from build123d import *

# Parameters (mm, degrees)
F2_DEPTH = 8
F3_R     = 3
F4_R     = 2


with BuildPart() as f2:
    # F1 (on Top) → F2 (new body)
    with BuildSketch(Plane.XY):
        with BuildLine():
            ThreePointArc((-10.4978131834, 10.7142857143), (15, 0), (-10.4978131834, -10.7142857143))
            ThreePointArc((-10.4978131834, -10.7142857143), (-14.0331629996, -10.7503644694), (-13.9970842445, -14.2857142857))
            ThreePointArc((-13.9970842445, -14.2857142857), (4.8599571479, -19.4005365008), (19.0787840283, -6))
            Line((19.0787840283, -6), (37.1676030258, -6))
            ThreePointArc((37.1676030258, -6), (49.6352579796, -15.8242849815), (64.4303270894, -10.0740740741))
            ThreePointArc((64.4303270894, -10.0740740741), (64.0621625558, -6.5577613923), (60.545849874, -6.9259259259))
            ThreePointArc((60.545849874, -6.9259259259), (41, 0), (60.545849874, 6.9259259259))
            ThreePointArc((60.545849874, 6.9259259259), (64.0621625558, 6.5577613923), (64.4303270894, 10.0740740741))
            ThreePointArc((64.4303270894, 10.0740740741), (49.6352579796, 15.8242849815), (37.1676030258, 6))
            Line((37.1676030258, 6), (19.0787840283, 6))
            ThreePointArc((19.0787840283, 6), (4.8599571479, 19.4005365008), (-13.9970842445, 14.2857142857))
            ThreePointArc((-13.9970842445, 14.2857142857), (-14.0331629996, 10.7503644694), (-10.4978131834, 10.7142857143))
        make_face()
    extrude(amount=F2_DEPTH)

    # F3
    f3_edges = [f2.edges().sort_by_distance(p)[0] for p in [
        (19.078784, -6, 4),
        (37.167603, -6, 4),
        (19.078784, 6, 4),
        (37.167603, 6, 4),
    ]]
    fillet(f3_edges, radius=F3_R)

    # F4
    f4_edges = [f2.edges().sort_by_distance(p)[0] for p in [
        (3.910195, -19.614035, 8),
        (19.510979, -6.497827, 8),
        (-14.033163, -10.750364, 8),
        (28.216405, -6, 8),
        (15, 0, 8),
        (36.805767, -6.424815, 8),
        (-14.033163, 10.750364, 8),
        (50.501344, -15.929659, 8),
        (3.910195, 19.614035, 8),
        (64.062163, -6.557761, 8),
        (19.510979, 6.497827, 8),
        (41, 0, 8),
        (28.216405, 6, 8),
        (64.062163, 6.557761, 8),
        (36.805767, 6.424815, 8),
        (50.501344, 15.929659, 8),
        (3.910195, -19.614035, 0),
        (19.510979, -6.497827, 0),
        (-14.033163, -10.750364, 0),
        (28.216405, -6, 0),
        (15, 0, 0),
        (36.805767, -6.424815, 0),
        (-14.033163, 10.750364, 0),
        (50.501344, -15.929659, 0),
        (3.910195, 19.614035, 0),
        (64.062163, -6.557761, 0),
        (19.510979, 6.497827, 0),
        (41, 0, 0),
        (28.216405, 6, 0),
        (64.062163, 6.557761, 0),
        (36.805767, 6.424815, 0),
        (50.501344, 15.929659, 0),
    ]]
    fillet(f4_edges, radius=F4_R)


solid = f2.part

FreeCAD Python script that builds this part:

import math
import FreeCAD as App
import Part
import Sketcher

V = App.Vector
Q = App.Units.Quantity


def edges_at(feature, points):
    """Names of the edges that pass closest to the given points."""
    edges = feature.Shape.Edges
    near = lambda p: min(range(len(edges)), key=lambda i: edges[i].distToShape(Part.Vertex(*p))[0])
    return sorted({f"Edge{near(p) + 1}" for p in points})

doc = App.newDocument("Part")
params = doc.addObject("Spreadsheet::Sheet", "Params")
for row, (alias, value) in enumerate([
    ("sketch1_radius", "15 mm"),
    ("sketch1_radius2", "20 mm"),
    ("sketch1_radius3", "16 mm"),
    ("pad1_length", "8 mm"),
    ("fillet_radius", "3 mm"),
    ("fillet2_radius", "2 mm"),
], start=1):
    params.set(f"A{row}", alias)
    params.set(f"B{row}", "=" + value)
    params.setAlias(f"B{row}", alias)

body = doc.addObject("PartDesign::Body", "Body")

# Sketch on XY plane
sketch1 = body.newObject("Sketcher::SketchObject", "Sketch")
sketch1.AttachmentSupport = (doc.getObject("XY_Plane"), [""])
sketch1.MapMode = "FlatFace"
sketch1.addGeometry(Part.ArcOfCircle(Part.Circle(V(0, 0, 0), V(0, 0, 1), 15), math.radians(-134.415309), math.radians(134.415309)), False)
sketch1.addGeometry(Part.ArcOfCircle(Part.Circle(V(-12.247449, -12.5, 0), V(0, 0, 1), 2.5), math.radians(45.584691), math.radians(225.584691)), False)
sketch1.addGeometry(Part.ArcOfCircle(Part.Circle(V(0, 0, 0), V(0, 0, 1), 20), math.radians(-134.415309), math.radians(-17.457603)), False)
sketch1.addGeometry(Part.LineSegment(V(19.078784, -6, 0), V(37.167603, -6, 0)), False)
sketch1.addGeometry(Part.ArcOfCircle(Part.Circle(V(52, 0, 0), V(0, 0, 1), 16), math.radians(-157.975687), math.radians(-39.022803)), False)
sketch1.addGeometry(Part.ArcOfCircle(Part.Circle(V(62.488088, -8.5, 0), V(0, 0, 1), 2.5), math.radians(-39.022803), math.radians(140.977197)), False)
sketch1.addGeometry(Part.ArcOfCircle(Part.Circle(V(52, 0, 0), V(0, 0, 1), 11), math.radians(39.022803), math.radians(320.977197)), False)
sketch1.addGeometry(Part.ArcOfCircle(Part.Circle(V(62.488088, 8.5, 0), V(0, 0, 1), 2.5), math.radians(-140.977197), math.radians(39.022803)), False)
sketch1.addGeometry(Part.ArcOfCircle(Part.Circle(V(52, 0, 0), V(0, 0, 1), 16), math.radians(39.022803), math.radians(157.975687)), False)
sketch1.addGeometry(Part.LineSegment(V(37.167603, 6, 0), V(19.078784, 6, 0)), False)
sketch1.addGeometry(Part.ArcOfCircle(Part.Circle(V(0, 0, 0), V(0, 0, 1), 20), math.radians(17.457603), math.radians(134.415309)), False)
sketch1.addGeometry(Part.ArcOfCircle(Part.Circle(V(-12.247449, 12.5, 0), V(0, 0, 1), 2.5), math.radians(134.415309), math.radians(314.415309)), False)
sketch1.addConstraint(Sketcher.Constraint("Tangent", 0, 1, 1, 1))
sketch1.addConstraint(Sketcher.Constraint("Tangent", 1, 2, 2, 1))
sketch1.addConstraint(Sketcher.Constraint("Coincident", 2, 2, 3, 1))
sketch1.addConstraint(Sketcher.Constraint("Coincident", 3, 2, 4, 1))
sketch1.addConstraint(Sketcher.Constraint("Tangent", 4, 2, 5, 1))
sketch1.addConstraint(Sketcher.Constraint("Tangent", 5, 2, 6, 2))
sketch1.addConstraint(Sketcher.Constraint("Tangent", 6, 1, 7, 1))
sketch1.addConstraint(Sketcher.Constraint("Tangent", 7, 2, 8, 1))
sketch1.addConstraint(Sketcher.Constraint("Coincident", 8, 2, 9, 1))
sketch1.addConstraint(Sketcher.Constraint("Coincident", 9, 2, 10, 1))
sketch1.addConstraint(Sketcher.Constraint("Tangent", 10, 2, 11, 1))
sketch1.addConstraint(Sketcher.Constraint("Tangent", 11, 2, 0, 2))
sketch1.addConstraint(Sketcher.Constraint("Horizontal", 3))
sketch1.addConstraint(Sketcher.Constraint("Horizontal", 9))
sketch1.addConstraint(Sketcher.Constraint("Coincident", 0, 3, -1, 1))
sketch1.addConstraint(Sketcher.Constraint("Coincident", 2, 3, -1, 1))
sketch1.addConstraint(Sketcher.Constraint("Coincident", 10, 3, -1, 1))
sketch1.addConstraint(Sketcher.Constraint("Coincident", 6, 3, 4, 3))
sketch1.addConstraint(Sketcher.Constraint("Coincident", 8, 3, 4, 3))
sketch1.addConstraint(Sketcher.Constraint("Equal", 1, 5))
sketch1.addConstraint(Sketcher.Constraint("Equal", 5, 7))
sketch1.addConstraint(Sketcher.Constraint("Equal", 2, 10))
sketch1.addConstraint(Sketcher.Constraint("Symmetric", 5, 3, 7, 3, -1))
sketch1.addConstraint(Sketcher.Constraint("Vertical", 1, 3, 11, 3))
sketch1.addConstraint(Sketcher.Constraint("Vertical", 3, 2, 8, 2))
sketch1.addConstraint(Sketcher.Constraint("Radius", 0, Q("15 mm")))
sketch1.addConstraint(Sketcher.Constraint("Radius", 2, Q("20 mm")))
sketch1.addConstraint(Sketcher.Constraint("Radius", 4, Q("16 mm")))
sketch1.addConstraint(Sketcher.Constraint("DistanceX", -1, 1, 4, 3, Q("52 mm")))
sketch1.addConstraint(Sketcher.Constraint("DistanceY", 2, 2, -1, 1, Q("6 mm")))
sketch1.addConstraint(Sketcher.Constraint("DistanceY", 1, 3, 5, 3, Q("4 mm")))
sketch1.addConstraint(Sketcher.Constraint("DistanceY", 5, 3, 7, 3, Q("17 mm")))
sketch1.setExpression("Constraints[25]", "Params.sketch1_radius")
sketch1.setExpression("Constraints[26]", "Params.sketch1_radius2")
sketch1.setExpression("Constraints[27]", "Params.sketch1_radius3")
pad1 = body.newObject("PartDesign::Pad", "Pad")
pad1.Profile = sketch1
pad1.setExpression("Length", "Params.pad1_length")
doc.recompute()

fillet = body.newObject("PartDesign::Fillet", "Fillet")
fillet.Base = (pad1, edges_at(pad1, [
    (19.079, -6, 4),
    (37.168, -6, 4),
    (19.079, 6, 4),
    (37.168, 6, 4),
]))
fillet.setExpression("Radius", "Params.fillet_radius")
doc.recompute()

fillet2 = body.newObject("PartDesign::Fillet", "Fillet001")
fillet2.Base = (fillet, edges_at(fillet, [
    (3.91, -19.614, 8),
    (19.511, -6.498, 8),
    (-14.033, -10.75, 8),
    (28.216, -6, 8),
    (15, 0, 8),
    (36.806, -6.425, 8),
    (-14.033, 10.75, 8),
    (50.501, -15.93, 8),
    (3.91, 19.614, 8),
    (64.062, -6.558, 8),
    (19.511, 6.498, 8),
    (41, 0, 8),
    (28.216, 6, 8),
    (64.062, 6.558, 8),
    (36.806, 6.425, 8),
    (50.501, 15.93, 8),
    (3.91, -19.614, 0),
    (19.511, -6.498, 0),
    (-14.033, -10.75, 0),
    (28.216, -6, 0),
    (15, 0, 0),
    (36.806, -6.425, 0),
    (-14.033, 10.75, 0),
    (50.501, -15.93, 0),
    (3.91, 19.614, 0),
    (64.062, -6.558, 0),
    (19.511, 6.498, 0),
    (41, 0, 0),
    (28.216, 6, 0),
    (64.062, 6.558, 0),
    (36.806, 6.425, 0),
    (50.501, 15.93, 0),
]))
fillet2.setExpression("Radius", "Params.fillet2_radius")

doc.recompute()
